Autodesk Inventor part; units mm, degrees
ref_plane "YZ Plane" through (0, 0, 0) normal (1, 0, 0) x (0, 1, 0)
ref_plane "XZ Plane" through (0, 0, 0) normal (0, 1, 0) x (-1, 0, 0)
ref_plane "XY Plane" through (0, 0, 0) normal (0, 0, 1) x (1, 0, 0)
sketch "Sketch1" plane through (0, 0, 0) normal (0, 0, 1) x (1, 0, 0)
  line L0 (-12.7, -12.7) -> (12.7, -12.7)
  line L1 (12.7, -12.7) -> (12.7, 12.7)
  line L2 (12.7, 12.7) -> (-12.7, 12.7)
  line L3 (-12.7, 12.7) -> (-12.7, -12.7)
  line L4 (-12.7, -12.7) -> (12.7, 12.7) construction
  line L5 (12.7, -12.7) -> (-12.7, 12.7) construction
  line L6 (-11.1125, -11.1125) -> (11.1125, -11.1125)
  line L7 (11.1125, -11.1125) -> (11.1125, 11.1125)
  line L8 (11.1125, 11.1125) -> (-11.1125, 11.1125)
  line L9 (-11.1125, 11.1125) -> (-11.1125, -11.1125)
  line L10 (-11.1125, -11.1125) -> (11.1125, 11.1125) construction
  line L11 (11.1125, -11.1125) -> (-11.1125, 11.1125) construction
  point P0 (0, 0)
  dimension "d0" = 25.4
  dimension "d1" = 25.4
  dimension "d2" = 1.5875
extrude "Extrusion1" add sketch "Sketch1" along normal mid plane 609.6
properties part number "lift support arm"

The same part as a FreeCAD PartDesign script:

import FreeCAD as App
import Part
import Sketcher
Q = App.Units.Quantity


def add_polygon(sketch, points):
    """Adds a closed chain of lines whose ends are joined by coincident constraints."""
    first, n = sketch.GeometryCount, len(points)
    for a, b in zip(points, points[1:] + points[:1]):
        sketch.addGeometry(Part.LineSegment(App.Vector(*a, 0), App.Vector(*b, 0)), False)
    for i in range(n):
        sketch.addConstraint(Sketcher.Constraint("Coincident", first + i, 2, first + (i + 1) % n, 1))

doc = App.newDocument("Part")
body = doc.addObject("PartDesign::Body", "Body")

sketch1 = body.newObject("Sketcher::SketchObject", "Sketch")
sketch1.AttachmentSupport = (doc.getObject("XY_Plane"), [""])
sketch1.MapMode = "FlatFace"
add_polygon(sketch1, [(-13, 13), (-13, -13), (13, -13), (13, 13)])
add_polygon(sketch1, [(11, -11), (-11, -11), (-11, 11), (11, 11)])
sketch1.addConstraint([
    Sketcher.Constraint("Vertical", 0),
    Sketcher.Constraint("Horizontal", 1),
    Sketcher.Constraint("Vertical", 2),
    Sketcher.Constraint("Horizontal", 3),
    Sketcher.Constraint("Horizontal", 4),
    Sketcher.Constraint("Vertical", 5),
    Sketcher.Constraint("Horizontal", 6),
    Sketcher.Constraint("Vertical", 7),
    Sketcher.Constraint("Symmetric", 0, 2, 2, 2, -1, 1),
    Sketcher.Constraint("Symmetric", 4, 2, 6, 2, -1, 1),
    Sketcher.Constraint("Equal", 3, 0),
    Sketcher.Constraint("Equal", 6, 5),
    Sketcher.Constraint("DistanceX", 1, 1, 1, 2, Q("1 in")),
    Sketcher.Constraint("DistanceX", 0, 2, 4, 2, Q("0.0625 in")),
])
pad1 = body.newObject("PartDesign::Pad", "Pad")
pad1.Profile = sketch1
pad1.Length = Q("24 in")
pad1.Midplane = True

doc.recompute()
